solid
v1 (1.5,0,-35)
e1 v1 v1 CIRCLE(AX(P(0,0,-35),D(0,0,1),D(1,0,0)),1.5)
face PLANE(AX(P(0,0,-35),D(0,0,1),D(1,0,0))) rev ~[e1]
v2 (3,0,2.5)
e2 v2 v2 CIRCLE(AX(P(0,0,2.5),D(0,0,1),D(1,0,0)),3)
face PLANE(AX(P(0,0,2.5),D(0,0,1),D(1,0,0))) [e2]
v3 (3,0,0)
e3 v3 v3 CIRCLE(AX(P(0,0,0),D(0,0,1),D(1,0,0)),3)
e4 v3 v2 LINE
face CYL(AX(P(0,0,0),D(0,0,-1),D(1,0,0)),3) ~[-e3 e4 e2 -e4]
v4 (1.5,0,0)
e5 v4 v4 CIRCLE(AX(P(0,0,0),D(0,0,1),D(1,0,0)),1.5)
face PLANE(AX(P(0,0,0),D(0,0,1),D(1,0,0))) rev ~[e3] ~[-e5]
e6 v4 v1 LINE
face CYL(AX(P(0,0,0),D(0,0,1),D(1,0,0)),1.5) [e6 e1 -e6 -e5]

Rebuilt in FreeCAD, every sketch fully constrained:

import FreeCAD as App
import Part
import Sketcher
from FreeCAD import Vector
Q = App.Units.Quantity

doc = App.newDocument("Part")
body = doc.addObject("PartDesign::Body", "Body")

sketch1 = body.newObject("Sketcher::SketchObject", "Sketch")
sketch1.AttachmentSupport = (doc.getObject("XY_Plane"), [""])
sketch1.MapMode = "FlatFace"
sketch1.addGeometry(Part.Circle(Vector(0, 0, 0), Vector(0, 0, 1), 3), False)
sketch1.addConstraint([
    Sketcher.Constraint("Coincident", 0, 3, -1, 1),
    Sketcher.Constraint("Diameter", 0, Q("6 mm")),
])
pad1 = body.newObject("PartDesign::Pad", "Pad")
pad1.Profile = sketch1
pad1.Length = 2.5

sketch2 = body.newObject("Sketcher::SketchObject", "Sketch001")
sketch2.AttachmentSupport = (doc.getObject("XY_Plane"), [""])
sketch2.MapMode = "FlatFace"
sketch2.addGeometry(Part.Circle(Vector(0, 0, 0), Vector(0, 0, 1), 1.5), False)
sketch2.addConstraint([
    Sketcher.Constraint("Coincident", 0, 3, -1, 1),
    Sketcher.Constraint("Diameter", 0, Q("3 mm")),
])
pad2 = body.newObject("PartDesign::Pad", "Pad001")
pad2.Profile = sketch2
pad2.Length = 35
pad2.Reversed = True

doc.recompute()
